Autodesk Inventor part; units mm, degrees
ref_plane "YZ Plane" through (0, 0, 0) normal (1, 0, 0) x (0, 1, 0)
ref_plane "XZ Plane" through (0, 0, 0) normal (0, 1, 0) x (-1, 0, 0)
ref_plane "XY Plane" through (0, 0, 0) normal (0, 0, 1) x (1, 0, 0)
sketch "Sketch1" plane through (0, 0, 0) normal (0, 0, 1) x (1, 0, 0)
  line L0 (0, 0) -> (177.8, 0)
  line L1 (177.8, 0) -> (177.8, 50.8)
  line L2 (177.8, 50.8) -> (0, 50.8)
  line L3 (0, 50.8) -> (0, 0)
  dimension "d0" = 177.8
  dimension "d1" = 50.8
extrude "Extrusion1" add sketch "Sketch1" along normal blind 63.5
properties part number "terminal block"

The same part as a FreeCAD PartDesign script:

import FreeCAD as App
import Part
import Sketcher
from FreeCAD import Vector
Q = App.Units.Quantity

doc = App.newDocument("Part")
body = doc.addObject("PartDesign::Body", "Body")

sketch1 = body.newObject("Sketcher::SketchObject", "Sketch")
sketch1.AttachmentSupport = (doc.getObject("XY_Plane"), [""])
sketch1.MapMode = "FlatFace"
sketch1.addGeometry(Part.LineSegment(Vector(0, 51, 0), Vector(0, 0, 0)), False)
sketch1.addGeometry(Part.LineSegment(Vector(0, 0, 0), Vector(178, 0, 0)), False)
sketch1.addGeometry(Part.LineSegment(Vector(178, 0, 0), Vector(178, 51, 0)), False)
sketch1.addGeometry(Part.LineSegment(Vector(178, 51, 0), Vector(0, 51, 0)), False)
sketch1.addConstraint(Sketcher.Constraint("Coincident", 0, 2, 1, 1))
sketch1.addConstraint(Sketcher.Constraint("Coincident", 1, 2, 2, 1))
sketch1.addConstraint(Sketcher.Constraint("Coincident", 2, 2, 3, 1))
sketch1.addConstraint(Sketcher.Constraint("Coincident", 3, 2, 0, 1))
sketch1.addConstraint(Sketcher.Constraint("Vertical", 0))
sketch1.addConstraint(Sketcher.Constraint("Horizontal", 1))
sketch1.addConstraint(Sketcher.Constraint("Vertical", 2))
sketch1.addConstraint(Sketcher.Constraint("Horizontal", 3))
sketch1.addConstraint(Sketcher.Constraint("Coincident", 0, 2, -1, 1))
sketch1.addConstraint(Sketcher.Constraint("DistanceX", 1, 1, 1, 2, Q("7 in")))
sketch1.addConstraint(Sketcher.Constraint("DistanceY", 0, 2, 0, 1, Q("2 in")))
pad1 = body.newObject("PartDesign::Pad", "Pad")
pad1.Profile = sketch1
pad1.Length = Q("2.5 in")

doc.recompute()
